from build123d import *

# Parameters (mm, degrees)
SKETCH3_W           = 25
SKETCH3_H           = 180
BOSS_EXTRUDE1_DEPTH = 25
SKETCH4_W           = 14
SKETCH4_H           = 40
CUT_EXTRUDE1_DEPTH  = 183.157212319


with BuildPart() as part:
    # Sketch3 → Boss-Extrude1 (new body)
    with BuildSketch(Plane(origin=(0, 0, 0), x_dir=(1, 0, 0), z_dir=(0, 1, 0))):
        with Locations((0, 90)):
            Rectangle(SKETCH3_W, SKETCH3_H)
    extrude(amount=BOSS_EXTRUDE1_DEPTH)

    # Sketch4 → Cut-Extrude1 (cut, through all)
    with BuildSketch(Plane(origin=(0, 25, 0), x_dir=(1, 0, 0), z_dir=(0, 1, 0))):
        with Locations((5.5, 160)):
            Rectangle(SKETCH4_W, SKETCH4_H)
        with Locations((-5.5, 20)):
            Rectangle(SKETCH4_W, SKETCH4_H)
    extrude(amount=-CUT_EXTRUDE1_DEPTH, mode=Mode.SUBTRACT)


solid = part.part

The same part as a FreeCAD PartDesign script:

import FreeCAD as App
import Part
import Sketcher


def add_polygon(sketch, points):
    """Adds a closed chain of lines whose ends are joined by coincident constraints."""
    first, n = sketch.GeometryCount, len(points)
    for a, b in zip(points, points[1:] + points[:1]):
        sketch.addGeometry(Part.LineSegment(App.Vector(*a, 0), App.Vector(*b, 0)), False)
    for i in range(n):
        sketch.addConstraint(Sketcher.Constraint("Coincident", first + i, 2, first + (i + 1) % n, 1))

doc = App.newDocument("Part")
params = doc.addObject("Spreadsheet::Sheet", "Params")
for row, (alias, value) in enumerate([
    ("sketch1_width", "25 mm"),
    ("sketch1_height", "180 mm"),
    ("pad1_length", "25 mm"),
    ("sketch2_width", "14 mm"),
    ("sketch2_height", "40 mm"),
], start=1):
    params.set(f"A{row}", alias)
    params.set(f"B{row}", "=" + value)
    params.setAlias(f"B{row}", alias)

body = doc.addObject("PartDesign::Body", "Body")

# Sketch on XZ plane
sketch1 = body.newObject("Sketcher::SketchObject", "Sketch")
sketch1.AttachmentSupport = (doc.getObject("XZ_Plane"), [""])
sketch1.MapMode = "FlatFace"
add_polygon(sketch1, [(-12.5, -180), (-12.5, 0), (12.5, 0), (12.5, -180)])  # lines 0-3
sketch1.addConstraint(Sketcher.Constraint("Vertical", 0))
sketch1.addConstraint(Sketcher.Constraint("Horizontal", 1))
sketch1.addConstraint(Sketcher.Constraint("Vertical", 2))
sketch1.addConstraint(Sketcher.Constraint("Horizontal", 3))
sketch1.addConstraint(Sketcher.Constraint("Symmetric", 0, 2, 1, 2, -1, 1))
sketch1.addConstraint(Sketcher.Constraint("DistanceX", 1, 1, 1, 2, 25.0))
sketch1.addConstraint(Sketcher.Constraint("DistanceY", 0, 1, 0, 2, 180.0))
sketch1.setExpression("Constraints[9]", "Params.sketch1_width")
sketch1.setExpression("Constraints[10]", "Params.sketch1_height")
pad1 = body.newObject("PartDesign::Pad", "Pad")
pad1.Profile = sketch1
pad1.setExpression("Length", "Params.pad1_length")
pad1.Reversed = True

# Sketch on XZ plane
sketch2 = body.newObject("Sketcher::SketchObject", "Sketch001")
sketch2.AttachmentSupport = (doc.getObject("XZ_Plane"), [""])
sketch2.MapMode = "FlatFace"
sketch2.AttachmentOffset = App.Placement(App.Vector(0, 0, -25), App.Rotation())
add_polygon(sketch2, [(-1.5, -180), (-1.5, -140), (12.5, -140), (12.5, -180)])  # lines 0-3
add_polygon(sketch2, [(-12.5, -40), (-12.5, 0), (1.5, 0), (1.5, -40)])  # lines 4-7
sketch2.addConstraint(Sketcher.Constraint("Vertical", 0))
sketch2.addConstraint(Sketcher.Constraint("Horizontal", 1))
sketch2.addConstraint(Sketcher.Constraint("Vertical", 2))
sketch2.addConstraint(Sketcher.Constraint("Horizontal", 3))
sketch2.addConstraint(Sketcher.Constraint("Vertical", 4))
sketch2.addConstraint(Sketcher.Constraint("Horizontal", 5))
sketch2.addConstraint(Sketcher.Constraint("Vertical", 6))
sketch2.addConstraint(Sketcher.Constraint("Horizontal", 7))
sketch2.addConstraint(Sketcher.Constraint("PointOnObject", 4, 2, -1))
sketch2.addConstraint(Sketcher.Constraint("Equal", 3, 5))
sketch2.addConstraint(Sketcher.Constraint("Equal", 2, 4))
sketch2.addConstraint(Sketcher.Constraint("DistanceX", 1, 1, 1, 2, 14.0))
sketch2.addConstraint(Sketcher.Constraint("DistanceY", 0, 1, 0, 2, 40.0))
sketch2.addConstraint(Sketcher.Constraint("DistanceY", 0, 2, -1, 1, 140.0))
sketch2.addConstraint(Sketcher.Constraint("DistanceX", 4, 2, 0, 2, 11.0))
sketch2.addConstraint(Sketcher.Constraint("DistanceX", 0, 2, -1, 1, 1.5))
sketch2.setExpression("Constraints[19]", "Params.sketch2_width")
sketch2.setExpression("Constraints[20]", "Params.sketch2_height")
pocket1 = body.newObject("PartDesign::Pocket", "Pocket")
pocket1.Profile = sketch2
pocket1.Type = "ThroughAll"
pocket1.Reversed = True

doc.recompute()
